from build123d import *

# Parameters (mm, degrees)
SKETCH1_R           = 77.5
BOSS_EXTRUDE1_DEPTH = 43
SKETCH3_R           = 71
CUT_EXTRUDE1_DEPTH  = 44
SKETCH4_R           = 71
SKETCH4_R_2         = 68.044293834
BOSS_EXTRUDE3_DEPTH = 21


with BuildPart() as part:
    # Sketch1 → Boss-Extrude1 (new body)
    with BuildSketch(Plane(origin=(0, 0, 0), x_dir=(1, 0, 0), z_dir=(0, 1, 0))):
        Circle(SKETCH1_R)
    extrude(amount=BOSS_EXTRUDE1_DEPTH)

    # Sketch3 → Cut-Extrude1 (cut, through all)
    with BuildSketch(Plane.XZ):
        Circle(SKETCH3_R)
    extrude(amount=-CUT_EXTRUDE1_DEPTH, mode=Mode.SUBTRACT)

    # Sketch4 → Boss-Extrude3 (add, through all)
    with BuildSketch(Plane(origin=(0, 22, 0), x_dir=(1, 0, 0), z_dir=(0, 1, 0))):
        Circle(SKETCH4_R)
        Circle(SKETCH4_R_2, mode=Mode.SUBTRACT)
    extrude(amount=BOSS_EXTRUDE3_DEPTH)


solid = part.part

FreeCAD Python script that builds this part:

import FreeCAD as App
import Part
import Sketcher

V = App.Vector
Q = App.Units.Quantity

doc = App.newDocument("Part")
body = doc.addObject("PartDesign::Body", "Body")

sketch1 = body.newObject("Sketcher::SketchObject", "Sketch")
sketch1.AttachmentSupport = (doc.getObject("XZ_Plane"), [""])
sketch1.MapMode = "FlatFace"
sketch1.addGeometry(Part.Circle(V(0, 0, 0), V(0, 0, 1), 77.5), False)
sketch1.addConstraint(Sketcher.Constraint("Coincident", 0, 3, -1, 1))
sketch1.addConstraint(Sketcher.Constraint("Diameter", 0, Q("155 mm")))
pad1 = body.newObject("PartDesign::Pad", "Pad")
pad1.Profile = sketch1
pad1.Length = 43
pad1.Reversed = True

sketch2 = body.newObject("Sketcher::SketchObject", "Sketch001")
sketch2.AttachmentSupport = (doc.getObject("XZ_Plane"), [""])
sketch2.MapMode = "FlatFace"
sketch2.addGeometry(Part.Circle(V(0, 0, 0), V(0, 0, 1), 71), False)
sketch2.addConstraint(Sketcher.Constraint("Coincident", 0, 3, -1, 1))
sketch2.addConstraint(Sketcher.Constraint("Diameter", 0, Q("142 mm")))
pocket1 = body.newObject("PartDesign::Pocket", "Pocket")
pocket1.Profile = sketch2
pocket1.Type = "ThroughAll"

sketch3 = body.newObject("Sketcher::SketchObject", "Sketch002")
sketch3.AttachmentSupport = (doc.getObject("XZ_Plane"), [""])
sketch3.MapMode = "FlatFace"
sketch3.AttachmentOffset = App.Placement(V(0, 0, -22), App.Rotation())
sketch3.addGeometry(Part.Circle(V(0, 0, 0), V(0, 0, 1), 71), False)
sketch3.addGeometry(Part.Circle(V(0, 0, 0), V(0, 0, 1), 68.044294), False)
sketch3.addConstraint(Sketcher.Constraint("Coincident", 0, 3, -1, 1))
sketch3.addConstraint(Sketcher.Constraint("Coincident", 1, 3, -1, 1))
sketch3.addConstraint(Sketcher.Constraint("Diameter", 0, Q("142 mm")))
sketch3.addConstraint(Sketcher.Constraint("Diameter", 1, Q("136.088588 mm")))
pad2 = body.newObject("PartDesign::Pad", "Pad001")
pad2.Profile = sketch3
pad2.Length = 21
pad2.Reversed = True

doc.recompute()
